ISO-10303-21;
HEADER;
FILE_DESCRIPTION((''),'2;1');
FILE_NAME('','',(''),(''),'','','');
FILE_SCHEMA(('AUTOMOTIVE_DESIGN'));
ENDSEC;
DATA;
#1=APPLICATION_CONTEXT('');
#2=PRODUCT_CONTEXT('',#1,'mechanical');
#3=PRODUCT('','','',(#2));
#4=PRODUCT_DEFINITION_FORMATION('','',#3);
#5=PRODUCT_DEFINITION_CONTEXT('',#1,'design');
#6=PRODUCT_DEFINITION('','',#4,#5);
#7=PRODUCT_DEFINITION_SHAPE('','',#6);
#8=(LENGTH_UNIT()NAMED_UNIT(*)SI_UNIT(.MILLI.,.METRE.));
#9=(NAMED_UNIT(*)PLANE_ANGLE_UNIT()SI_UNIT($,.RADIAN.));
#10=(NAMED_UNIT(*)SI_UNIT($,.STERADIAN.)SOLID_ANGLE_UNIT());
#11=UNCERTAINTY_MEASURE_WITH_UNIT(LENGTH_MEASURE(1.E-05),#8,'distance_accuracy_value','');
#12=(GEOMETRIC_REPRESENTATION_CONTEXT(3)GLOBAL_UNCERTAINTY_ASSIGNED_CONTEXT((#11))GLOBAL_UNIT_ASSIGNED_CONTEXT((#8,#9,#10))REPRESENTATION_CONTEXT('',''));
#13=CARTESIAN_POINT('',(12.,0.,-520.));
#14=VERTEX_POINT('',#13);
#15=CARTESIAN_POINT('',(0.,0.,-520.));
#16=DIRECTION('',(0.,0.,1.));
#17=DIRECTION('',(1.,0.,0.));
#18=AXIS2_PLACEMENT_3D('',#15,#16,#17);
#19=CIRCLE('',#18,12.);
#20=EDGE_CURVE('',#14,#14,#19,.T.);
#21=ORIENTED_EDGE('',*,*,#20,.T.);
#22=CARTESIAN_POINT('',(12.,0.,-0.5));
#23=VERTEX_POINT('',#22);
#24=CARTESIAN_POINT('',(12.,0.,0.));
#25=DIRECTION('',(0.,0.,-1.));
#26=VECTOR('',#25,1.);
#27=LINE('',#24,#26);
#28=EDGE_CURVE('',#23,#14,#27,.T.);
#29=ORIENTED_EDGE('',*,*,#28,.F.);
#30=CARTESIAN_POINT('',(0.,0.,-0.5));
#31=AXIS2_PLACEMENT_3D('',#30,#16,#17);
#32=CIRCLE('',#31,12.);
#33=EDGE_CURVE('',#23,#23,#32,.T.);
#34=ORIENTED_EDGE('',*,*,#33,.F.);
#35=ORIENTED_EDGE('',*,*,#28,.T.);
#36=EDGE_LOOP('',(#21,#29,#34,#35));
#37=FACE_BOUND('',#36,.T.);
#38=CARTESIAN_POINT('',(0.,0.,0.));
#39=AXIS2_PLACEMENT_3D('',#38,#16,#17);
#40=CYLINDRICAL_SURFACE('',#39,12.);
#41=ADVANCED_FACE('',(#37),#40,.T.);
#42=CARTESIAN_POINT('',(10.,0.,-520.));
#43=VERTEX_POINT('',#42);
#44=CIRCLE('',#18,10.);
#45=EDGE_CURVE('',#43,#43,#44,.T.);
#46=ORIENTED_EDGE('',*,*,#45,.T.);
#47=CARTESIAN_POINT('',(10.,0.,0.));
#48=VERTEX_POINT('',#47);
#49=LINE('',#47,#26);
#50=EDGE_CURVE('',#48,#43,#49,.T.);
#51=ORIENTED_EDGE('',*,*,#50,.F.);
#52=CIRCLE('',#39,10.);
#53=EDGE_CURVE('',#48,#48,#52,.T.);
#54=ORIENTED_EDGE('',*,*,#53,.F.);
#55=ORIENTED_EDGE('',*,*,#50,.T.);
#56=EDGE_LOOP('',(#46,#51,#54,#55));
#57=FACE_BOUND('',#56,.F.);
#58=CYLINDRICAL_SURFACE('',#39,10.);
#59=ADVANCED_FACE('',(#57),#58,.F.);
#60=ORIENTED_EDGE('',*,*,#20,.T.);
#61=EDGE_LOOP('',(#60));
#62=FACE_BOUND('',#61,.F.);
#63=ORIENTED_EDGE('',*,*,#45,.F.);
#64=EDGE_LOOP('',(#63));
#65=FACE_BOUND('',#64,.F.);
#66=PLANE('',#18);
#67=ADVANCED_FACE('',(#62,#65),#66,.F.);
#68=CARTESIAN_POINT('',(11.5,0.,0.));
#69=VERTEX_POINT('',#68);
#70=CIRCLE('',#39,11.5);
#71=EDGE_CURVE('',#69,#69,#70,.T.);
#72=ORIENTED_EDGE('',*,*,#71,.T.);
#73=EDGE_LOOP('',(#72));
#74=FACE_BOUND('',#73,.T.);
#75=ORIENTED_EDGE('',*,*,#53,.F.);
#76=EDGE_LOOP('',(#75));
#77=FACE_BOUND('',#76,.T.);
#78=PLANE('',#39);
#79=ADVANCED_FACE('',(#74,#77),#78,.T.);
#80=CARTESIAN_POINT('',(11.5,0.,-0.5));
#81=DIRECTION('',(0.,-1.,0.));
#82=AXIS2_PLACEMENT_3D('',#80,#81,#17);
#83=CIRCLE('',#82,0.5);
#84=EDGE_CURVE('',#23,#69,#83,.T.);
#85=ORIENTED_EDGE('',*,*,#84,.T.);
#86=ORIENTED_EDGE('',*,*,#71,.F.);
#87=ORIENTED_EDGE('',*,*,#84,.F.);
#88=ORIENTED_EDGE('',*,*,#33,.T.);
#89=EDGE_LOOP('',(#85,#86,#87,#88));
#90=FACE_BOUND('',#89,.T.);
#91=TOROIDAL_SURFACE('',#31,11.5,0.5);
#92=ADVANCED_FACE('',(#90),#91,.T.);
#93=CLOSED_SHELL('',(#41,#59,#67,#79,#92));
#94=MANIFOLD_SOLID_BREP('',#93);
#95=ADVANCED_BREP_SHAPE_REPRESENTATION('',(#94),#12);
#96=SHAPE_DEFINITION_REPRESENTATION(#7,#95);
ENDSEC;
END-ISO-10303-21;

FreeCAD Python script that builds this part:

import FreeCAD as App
import Part
import Sketcher
from FreeCAD import Vector
Q = App.Units.Quantity


def edges_at(feature, points):
    """Names of the edges that pass closest to the given points."""
    edges = feature.Shape.Edges
    near = lambda p: min(range(len(edges)), key=lambda i: edges[i].distToShape(Part.Vertex(*p))[0])
    return sorted({f"Edge{near(p) + 1}" for p in points})

doc = App.newDocument("Part")
body = doc.addObject("PartDesign::Body", "Body")

# Sketch on XY plane
sketch1 = doc.addObject("Sketcher::SketchObject", "Sketch")
body.addObject(sketch1)
sketch1.AttachmentSupport = (doc.XY_Plane, [""])
sketch1.MapMode = "FlatFace"
sketch1.addGeometry(Part.Circle(Vector(0, 0, 0), Vector(0, 0, 1), 12), False)
sketch1.addGeometry(Part.Circle(Vector(0, 0, 0), Vector(0, 0, 1), 10), False)
sketch1.addConstraint(Sketcher.Constraint("Coincident", 0, 3, -1, 1))
sketch1.addConstraint(Sketcher.Constraint("Coincident", 1, 3, -1, 1))
sketch1.addConstraint(Sketcher.Constraint("Diameter", 1, Q("20 mm")))
sketch1.addConstraint(Sketcher.Constraint("Diameter", 0, Q("24 mm")))
pad1 = doc.addObject("PartDesign::Pad", "Pad")
body.addObject(pad1)
pad1.Profile = sketch1
pad1.Length = 520
pad1.Reversed = True
doc.recompute()

fillet = doc.addObject("PartDesign::Fillet", "Fillet")
body.addObject(fillet)
fillet.Base = (pad1, edges_at(pad1, [(-12, 0, 0)]))
fillet.Radius = 0.5

doc.recompute()
